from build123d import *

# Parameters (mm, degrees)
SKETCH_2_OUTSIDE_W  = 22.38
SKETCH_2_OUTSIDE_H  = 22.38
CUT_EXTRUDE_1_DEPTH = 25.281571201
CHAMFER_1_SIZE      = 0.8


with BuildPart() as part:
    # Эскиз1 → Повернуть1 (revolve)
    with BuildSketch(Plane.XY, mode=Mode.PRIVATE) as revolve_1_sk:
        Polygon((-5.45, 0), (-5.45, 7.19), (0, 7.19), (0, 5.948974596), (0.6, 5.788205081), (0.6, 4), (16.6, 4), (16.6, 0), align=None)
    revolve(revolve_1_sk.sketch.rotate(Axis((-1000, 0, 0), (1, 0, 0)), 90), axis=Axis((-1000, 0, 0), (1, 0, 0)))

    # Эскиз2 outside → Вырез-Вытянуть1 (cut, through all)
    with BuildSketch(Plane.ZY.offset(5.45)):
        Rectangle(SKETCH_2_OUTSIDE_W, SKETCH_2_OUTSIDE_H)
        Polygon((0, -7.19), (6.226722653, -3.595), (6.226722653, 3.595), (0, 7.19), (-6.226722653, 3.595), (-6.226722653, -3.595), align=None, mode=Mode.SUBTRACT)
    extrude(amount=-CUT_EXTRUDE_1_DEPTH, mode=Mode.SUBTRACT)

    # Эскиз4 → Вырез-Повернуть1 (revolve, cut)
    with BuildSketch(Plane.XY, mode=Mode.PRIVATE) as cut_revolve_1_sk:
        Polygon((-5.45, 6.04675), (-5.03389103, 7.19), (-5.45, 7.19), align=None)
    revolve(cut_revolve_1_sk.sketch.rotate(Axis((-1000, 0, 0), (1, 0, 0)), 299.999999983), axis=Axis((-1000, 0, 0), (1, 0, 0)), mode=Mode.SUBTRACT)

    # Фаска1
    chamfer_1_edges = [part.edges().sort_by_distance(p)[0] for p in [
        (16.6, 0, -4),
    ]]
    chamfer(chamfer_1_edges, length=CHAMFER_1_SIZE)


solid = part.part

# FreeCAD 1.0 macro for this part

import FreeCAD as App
import Part
import Sketcher
Q = App.Units.Quantity


def edges_at(feature, points):
    """Names of the edges that pass closest to the given points."""
    edges = feature.Shape.Edges
    near = lambda p: min(range(len(edges)), key=lambda i: edges[i].distToShape(Part.Vertex(*p))[0])
    return sorted({f"Edge{near(p) + 1}" for p in points})


def add_polygon(sketch, points):
    """Adds a closed chain of lines whose ends are joined by coincident constraints."""
    first, n = sketch.GeometryCount, len(points)
    for a, b in zip(points, points[1:] + points[:1]):
        sketch.addGeometry(Part.LineSegment(App.Vector(*a, 0), App.Vector(*b, 0)), False)
    for i in range(n):
        sketch.addConstraint(Sketcher.Constraint("Coincident", first + i, 2, first + (i + 1) % n, 1))

doc = App.newDocument("Part")
params = doc.addObject("Spreadsheet::Sheet", "Params")
for row, (alias, value) in enumerate([
    ("sketch1_width", "16 mm"),
    ("sketch1_height", "4 mm"),
    ("sketch1_width2", "22.05 mm"),
    ("sketch1_width3", "5.45 mm"),
    ("sketch1_height2", "7.19 mm"),
    ("revolution_angle", "360 deg"),
    ("sketch2_width", "22.38 mm"),
    ("sketch2_width2", "7.19 mm"),
    ("groove_angle", "360 deg"),
    ("chamfer_size", "0.8 mm"),
], start=1):
    params.set(f"A{row}", alias)
    params.set(f"B{row}", "=" + value)
    params.setAlias(f"B{row}", alias)

body = doc.addObject("PartDesign::Body", "Body")

# Sketch on XY plane
sketch1 = body.newObject("Sketcher::SketchObject", "Sketch")
sketch1.AttachmentSupport = (doc.getObject("XY_Plane"), [""])
sketch1.MapMode = "FlatFace"
add_polygon(sketch1, [(-5.45, 7.19), (-5.45, 0), (16.6, 0), (16.6, 4), (0.6, 4), (0.6, 5.788205), (0, 5.948975), (0, 7.19)])  # lines 0-7
sketch1.addConstraint([
    Sketcher.Constraint("Vertical", 0),
    Sketcher.Constraint("Horizontal", 1),
    Sketcher.Constraint("Vertical", 2),
    Sketcher.Constraint("Horizontal", 3),
    Sketcher.Constraint("Vertical", 4),
    Sketcher.Constraint("Vertical", 6),
    Sketcher.Constraint("Horizontal", 7),
    Sketcher.Constraint("PointOnObject", 0, 2, -1),
    Sketcher.Constraint("PointOnObject", 5, 2, -2),
    Sketcher.Constraint("DistanceX", 3, 2, 3, 1, 16.0),
    Sketcher.Constraint("DistanceY", 2, 1, 2, 2, 4.0),
    Sketcher.Constraint("Angle", 5, Q("165 deg")),
    Sketcher.Constraint("DistanceX", 1, 1, 1, 2, 22.05),
    Sketcher.Constraint("DistanceX", 7, 2, 7, 1, 5.45),
    Sketcher.Constraint("DistanceY", 0, 2, 0, 1, 7.19),
    Sketcher.Constraint("DistanceY", 4, 1, 4, 2, 1.788205),
])
sketch1.setExpression("Constraints[17]", "Params.sketch1_width")
sketch1.setExpression("Constraints[18]", "Params.sketch1_height")
sketch1.setExpression("Constraints[20]", "Params.sketch1_width2")
sketch1.setExpression("Constraints[21]", "Params.sketch1_width3")
sketch1.setExpression("Constraints[22]", "Params.sketch1_height2")
revolution = body.newObject("PartDesign::Revolution", "Revolution")
revolution.Profile = sketch1
revolution.ReferenceAxis = (sketch1, ["H_Axis"])
revolution.setExpression("Angle", "Params.revolution_angle")

# Sketch on YZ plane
sketch2 = body.newObject("Sketcher::SketchObject", "Sketch001")
sketch2.AttachmentSupport = (doc.getObject("YZ_Plane"), [""])
sketch2.MapMode = "FlatFace"
sketch2.AttachmentOffset = App.Placement(App.Vector(0, 0, -5.45), App.Rotation())
add_polygon(sketch2, [(11.19, -11.19), (-11.19, -11.19), (-11.19, 11.19), (11.19, 11.19)])  # lines 0-3
add_polygon(sketch2, [(-3.595, 6.226723), (-7.19, 0), (-3.595, -6.226723), (3.595, -6.226723), (7.19, 0), (3.595, 6.226723)])  # lines 4-9
sketch2.addConstraint([
    Sketcher.Constraint("Horizontal", 0),
    Sketcher.Constraint("Vertical", 1),
    Sketcher.Constraint("Horizontal", 2),
    Sketcher.Constraint("Vertical", 3),
    Sketcher.Constraint("Horizontal", 6),
    Sketcher.Constraint("Horizontal", 9),
    Sketcher.Constraint("Symmetric", 0, 2, 2, 2, -1, 1),
    Sketcher.Constraint("Symmetric", 4, 2, 7, 2, -1, 1),
    Sketcher.Constraint("Symmetric", 5, 2, 8, 2, -1, 1),
    Sketcher.Constraint("PointOnObject", 4, 2, -1),
    Sketcher.Constraint("Parallel", 4, 7),
    Sketcher.Constraint("Vertical", 6, 2, 8, 2),
    Sketcher.Constraint("Equal", 2, 1),
    Sketcher.Constraint("Angle", 4, Q("-120 deg")),
    Sketcher.Constraint("DistanceX", 0, 2, 4, 2, 4.0),
    Sketcher.Constraint("DistanceX", 0, 2, 0, 1, 22.38),
    Sketcher.Constraint("DistanceX", 6, 1, 6, 2, 7.19),
])
sketch2.setExpression("Constraints[25]", "Params.sketch2_width")
sketch2.setExpression("Constraints[26]", "Params.sketch2_width2")
pocket1 = body.newObject("PartDesign::Pocket", "Pocket")
pocket1.Profile = sketch2
pocket1.Type = "ThroughAll"
pocket1.Reversed = True

# Sketch on XY plane
sketch3 = body.newObject("Sketcher::SketchObject", "Sketch002")
sketch3.AttachmentSupport = (doc.getObject("XY_Plane"), [""])
sketch3.MapMode = "FlatFace"
add_polygon(sketch3, [(-5.45, 6.04675), (-5.033891, 7.19), (-5.45, 7.19)])  # lines 0-2
sketch3.addConstraint([
    Sketcher.Constraint("Horizontal", 1),
    Sketcher.Constraint("Vertical", 2),
    Sketcher.Constraint("Angle", 0, Q("70 deg")),
    Sketcher.Constraint("DistanceY", -1, 1, 0, 2, 7.19),
    Sketcher.Constraint("DistanceX", 1, 2, -1, 1, 5.45),
    Sketcher.Constraint("DistanceX", 1, 2, 1, 1, 0.416109),
])
groove = body.newObject("PartDesign::Groove", "Groove")
groove.Profile = sketch3
groove.ReferenceAxis = (sketch3, ["H_Axis"])
groove.setExpression("Angle", "Params.groove_angle")
doc.recompute()

chamfer = body.newObject("PartDesign::Chamfer", "Chamfer")
chamfer.Base = (groove, edges_at(groove, [(16.6, 0, -4)]))
chamfer.setExpression("Size", "Params.chamfer_size")

doc.recompute()
